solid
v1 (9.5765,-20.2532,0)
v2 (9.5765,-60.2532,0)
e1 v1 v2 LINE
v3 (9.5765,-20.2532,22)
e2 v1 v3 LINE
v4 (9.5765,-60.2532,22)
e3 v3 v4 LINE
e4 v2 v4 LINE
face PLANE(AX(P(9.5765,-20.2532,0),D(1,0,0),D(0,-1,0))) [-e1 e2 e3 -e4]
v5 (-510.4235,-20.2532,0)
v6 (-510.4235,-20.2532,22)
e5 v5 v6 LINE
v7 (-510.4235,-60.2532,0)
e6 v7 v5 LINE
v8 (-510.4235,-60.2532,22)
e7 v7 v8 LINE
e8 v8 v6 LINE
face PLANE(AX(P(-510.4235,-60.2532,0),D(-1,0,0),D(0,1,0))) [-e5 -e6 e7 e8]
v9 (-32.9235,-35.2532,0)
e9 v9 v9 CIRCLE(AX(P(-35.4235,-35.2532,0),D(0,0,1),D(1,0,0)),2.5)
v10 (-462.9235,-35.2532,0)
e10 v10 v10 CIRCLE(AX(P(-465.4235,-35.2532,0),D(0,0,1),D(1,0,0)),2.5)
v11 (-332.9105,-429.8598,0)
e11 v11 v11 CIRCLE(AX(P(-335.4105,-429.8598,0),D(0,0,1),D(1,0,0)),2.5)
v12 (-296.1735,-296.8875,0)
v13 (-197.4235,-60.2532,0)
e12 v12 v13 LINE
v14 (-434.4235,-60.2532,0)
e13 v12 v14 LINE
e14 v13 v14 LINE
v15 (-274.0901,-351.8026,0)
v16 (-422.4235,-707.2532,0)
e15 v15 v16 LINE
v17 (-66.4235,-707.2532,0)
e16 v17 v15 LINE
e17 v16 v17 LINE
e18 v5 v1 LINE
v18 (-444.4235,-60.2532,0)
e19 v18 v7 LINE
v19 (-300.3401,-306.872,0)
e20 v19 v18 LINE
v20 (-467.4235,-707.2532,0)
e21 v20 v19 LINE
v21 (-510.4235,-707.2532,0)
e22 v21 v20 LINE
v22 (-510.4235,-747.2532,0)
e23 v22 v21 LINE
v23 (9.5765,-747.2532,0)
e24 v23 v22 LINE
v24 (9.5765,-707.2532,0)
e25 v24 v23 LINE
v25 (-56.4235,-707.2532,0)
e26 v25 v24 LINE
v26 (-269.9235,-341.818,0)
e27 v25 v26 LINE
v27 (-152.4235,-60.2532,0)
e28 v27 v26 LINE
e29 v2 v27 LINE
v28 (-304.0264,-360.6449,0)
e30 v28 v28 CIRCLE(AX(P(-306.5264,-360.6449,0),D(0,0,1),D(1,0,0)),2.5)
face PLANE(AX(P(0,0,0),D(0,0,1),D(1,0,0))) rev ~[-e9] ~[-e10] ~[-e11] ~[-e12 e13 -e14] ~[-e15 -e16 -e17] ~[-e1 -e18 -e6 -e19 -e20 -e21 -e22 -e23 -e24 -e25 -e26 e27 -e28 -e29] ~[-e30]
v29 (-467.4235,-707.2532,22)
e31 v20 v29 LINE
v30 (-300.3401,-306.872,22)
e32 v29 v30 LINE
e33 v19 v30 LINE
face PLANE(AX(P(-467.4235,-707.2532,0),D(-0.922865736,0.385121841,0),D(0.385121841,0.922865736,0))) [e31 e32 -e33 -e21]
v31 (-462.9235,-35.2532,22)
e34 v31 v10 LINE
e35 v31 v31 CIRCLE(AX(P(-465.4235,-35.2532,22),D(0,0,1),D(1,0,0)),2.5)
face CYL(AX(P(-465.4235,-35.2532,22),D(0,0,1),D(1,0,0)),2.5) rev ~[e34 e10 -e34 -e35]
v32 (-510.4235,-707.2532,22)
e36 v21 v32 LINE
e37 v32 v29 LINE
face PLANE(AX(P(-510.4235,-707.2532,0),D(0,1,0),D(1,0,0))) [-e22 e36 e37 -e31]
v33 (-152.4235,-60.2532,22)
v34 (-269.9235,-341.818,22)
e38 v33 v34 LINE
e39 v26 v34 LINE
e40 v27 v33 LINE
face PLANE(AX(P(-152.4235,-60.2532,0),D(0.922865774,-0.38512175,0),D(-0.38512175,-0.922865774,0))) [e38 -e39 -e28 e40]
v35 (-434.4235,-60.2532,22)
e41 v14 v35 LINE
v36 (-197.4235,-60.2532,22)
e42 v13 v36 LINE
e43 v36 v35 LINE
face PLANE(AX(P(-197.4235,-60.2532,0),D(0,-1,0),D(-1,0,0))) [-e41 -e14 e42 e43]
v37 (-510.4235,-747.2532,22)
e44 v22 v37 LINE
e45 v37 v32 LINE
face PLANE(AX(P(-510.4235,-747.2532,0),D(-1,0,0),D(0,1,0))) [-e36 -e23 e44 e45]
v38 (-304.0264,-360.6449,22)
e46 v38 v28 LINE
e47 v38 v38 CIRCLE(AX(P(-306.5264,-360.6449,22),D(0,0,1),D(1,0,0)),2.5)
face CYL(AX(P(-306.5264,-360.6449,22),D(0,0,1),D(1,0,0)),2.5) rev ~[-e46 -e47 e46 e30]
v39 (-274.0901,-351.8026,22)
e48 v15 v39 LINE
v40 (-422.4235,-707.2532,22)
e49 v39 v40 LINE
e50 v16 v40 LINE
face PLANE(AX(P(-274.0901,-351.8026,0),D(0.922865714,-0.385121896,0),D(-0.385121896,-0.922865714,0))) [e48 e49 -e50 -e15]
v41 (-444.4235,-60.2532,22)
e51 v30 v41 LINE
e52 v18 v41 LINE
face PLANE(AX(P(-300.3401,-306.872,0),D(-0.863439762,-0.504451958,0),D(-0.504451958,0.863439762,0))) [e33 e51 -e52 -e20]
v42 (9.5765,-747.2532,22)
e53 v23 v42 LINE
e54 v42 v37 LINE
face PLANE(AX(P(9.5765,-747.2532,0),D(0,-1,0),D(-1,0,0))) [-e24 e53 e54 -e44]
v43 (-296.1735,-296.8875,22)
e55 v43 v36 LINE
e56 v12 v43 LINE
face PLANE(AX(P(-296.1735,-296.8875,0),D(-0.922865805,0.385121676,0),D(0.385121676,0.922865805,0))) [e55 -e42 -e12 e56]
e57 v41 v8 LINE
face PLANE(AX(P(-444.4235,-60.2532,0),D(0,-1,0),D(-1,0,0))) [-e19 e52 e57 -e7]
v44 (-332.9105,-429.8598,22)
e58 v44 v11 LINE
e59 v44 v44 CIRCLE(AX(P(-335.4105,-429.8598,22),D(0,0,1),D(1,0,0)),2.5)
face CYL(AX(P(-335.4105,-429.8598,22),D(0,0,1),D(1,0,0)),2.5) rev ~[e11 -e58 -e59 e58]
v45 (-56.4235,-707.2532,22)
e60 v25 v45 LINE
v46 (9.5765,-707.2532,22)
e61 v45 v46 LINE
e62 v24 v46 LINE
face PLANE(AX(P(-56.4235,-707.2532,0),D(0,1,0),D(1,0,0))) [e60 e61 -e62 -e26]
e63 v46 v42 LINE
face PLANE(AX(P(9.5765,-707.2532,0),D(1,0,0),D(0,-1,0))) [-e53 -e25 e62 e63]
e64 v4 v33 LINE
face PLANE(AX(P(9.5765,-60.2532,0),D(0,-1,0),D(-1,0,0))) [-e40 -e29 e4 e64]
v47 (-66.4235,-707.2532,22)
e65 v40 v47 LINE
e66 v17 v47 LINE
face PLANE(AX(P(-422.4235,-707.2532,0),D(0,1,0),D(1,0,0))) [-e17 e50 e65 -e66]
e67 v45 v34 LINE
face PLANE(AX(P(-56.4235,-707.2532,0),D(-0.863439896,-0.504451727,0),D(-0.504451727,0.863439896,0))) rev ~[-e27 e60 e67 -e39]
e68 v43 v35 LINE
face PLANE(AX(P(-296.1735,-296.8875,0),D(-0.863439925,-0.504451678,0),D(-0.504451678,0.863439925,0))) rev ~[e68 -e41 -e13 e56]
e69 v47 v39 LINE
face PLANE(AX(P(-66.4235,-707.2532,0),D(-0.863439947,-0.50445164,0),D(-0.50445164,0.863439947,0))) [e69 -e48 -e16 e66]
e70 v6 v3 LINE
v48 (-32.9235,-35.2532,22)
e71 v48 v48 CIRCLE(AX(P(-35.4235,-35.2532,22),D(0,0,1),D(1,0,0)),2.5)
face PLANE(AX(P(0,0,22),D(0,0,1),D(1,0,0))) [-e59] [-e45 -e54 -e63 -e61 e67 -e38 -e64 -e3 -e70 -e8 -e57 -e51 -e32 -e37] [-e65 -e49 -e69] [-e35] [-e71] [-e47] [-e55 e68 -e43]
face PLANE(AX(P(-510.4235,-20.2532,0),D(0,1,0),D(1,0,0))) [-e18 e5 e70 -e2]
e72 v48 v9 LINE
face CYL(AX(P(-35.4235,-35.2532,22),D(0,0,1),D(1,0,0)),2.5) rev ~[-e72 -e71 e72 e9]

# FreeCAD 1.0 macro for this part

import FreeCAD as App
import Part
import Sketcher
from FreeCAD import Vector
Q = App.Units.Quantity


def add_polygon(sketch, points):
    """Adds a closed chain of lines whose ends are joined by coincident constraints."""
    first, n = sketch.GeometryCount, len(points)
    for a, b in zip(points, points[1:] + points[:1]):
        sketch.addGeometry(Part.LineSegment(App.Vector(*a, 0), App.Vector(*b, 0)), False)
    for i in range(n):
        sketch.addConstraint(Sketcher.Constraint("Coincident", first + i, 2, first + (i + 1) % n, 1))

doc = App.newDocument("Part")
params = doc.addObject("Spreadsheet::Sheet", "Params")
for row, (alias, value) in enumerate([
    ("sketch1_width", "520 mm"),
    ("sketch1_width2", "66 mm"),
    ("sketch1_width3", "43 mm"),
    ("sketch1_width4", "162 mm"),
    ("sketch1_height", "40 mm"),
    ("pad1_length", "22 mm"),
    ("sketch2_diameter", "5 mm"),
    ("pocket1_length", "25 mm"),
], start=1):
    params.set(f"A{row}", alias)
    params.set(f"B{row}", "=" + value)
    params.setAlias(f"B{row}", alias)

body = doc.addObject("PartDesign::Body", "Body")

# Sketch on XY plane
sketch1 = body.newObject("Sketcher::SketchObject", "Sketch")
sketch1.AttachmentSupport = (doc.getObject("XY_Plane"), [""])
sketch1.MapMode = "FlatFace"
add_polygon(sketch1, [(10, -20), (-510, -20), (-510, -60), (-444, -60), (-300, -307), (-467, -707), (-510, -707), (-510, -747), (10, -747), (10, -707), (-56, -707), (-270, -342), (-152, -60), (10, -60)])  # lines 0-13
add_polygon(sketch1, [(-434, -60), (-197, -60), (-296, -297)])  # lines 14-16
add_polygon(sketch1, [(-274, -352), (-66, -707), (-422, -707)])  # lines 17-19
sketch1.addConstraint([
    Sketcher.Constraint("Horizontal", 0),
    Sketcher.Constraint("Vertical", 1),
    Sketcher.Constraint("Horizontal", 2),
    Sketcher.Constraint("Horizontal", 5),
    Sketcher.Constraint("Vertical", 6),
    Sketcher.Constraint("Horizontal", 7),
    Sketcher.Constraint("Vertical", 8),
    Sketcher.Constraint("Horizontal", 9),
    Sketcher.Constraint("Horizontal", 12),
    Sketcher.Constraint("Vertical", 13),
    Sketcher.Constraint("Horizontal", 14),
    Sketcher.Constraint("Horizontal", 18),
    Sketcher.Constraint("Parallel", 3, 10),
    Sketcher.Constraint("Parallel", 4, 11),
    Sketcher.Constraint("Parallel", 11, 15),
    Sketcher.Constraint("Parallel", 10, 16),
    Sketcher.Constraint("Parallel", 16, 17),
    Sketcher.Constraint("Parallel", 15, 19),
    Sketcher.Constraint("Horizontal", 5, 2, 8, 2),
    Sketcher.Constraint("Horizontal", 2, 2, 11, 2),
    Sketcher.Constraint("Horizontal", 12, 2, 14, 2),
    Sketcher.Constraint("Horizontal", 9, 2, 17, 2),
    Sketcher.Constraint("Vertical", 1, 2, 5, 2),
    Sketcher.Constraint("Vertical", 8, 2, 12, 2),
    Sketcher.Constraint("Equal", 2, 9),
    Sketcher.Constraint("Equal", 1, 6),
    Sketcher.Constraint("DistanceX", 0, 2, 0, 1, Q("520 mm")),
    Sketcher.Constraint("DistanceX", 2, 1, 2, 2, Q("66 mm")),
    Sketcher.Constraint("DistanceX", 5, 2, 5, 1, Q("43 mm")),
    Sketcher.Constraint("DistanceX", 12, 1, 12, 2, Q("162 mm")),
    Sketcher.Constraint("DistanceY", 1, 2, 1, 1, Q("40 mm")),
    Sketcher.Constraint("DistanceY", 4, 2, 2, 2, Q("647 mm")),
    Sketcher.Constraint("DistanceX", 14, 2, 11, 2, Q("45 mm")),
    Sketcher.Constraint("DistanceX", 2, 2, 16, 2, Q("10 mm")),
    Sketcher.Constraint("DistanceX", 17, 2, 9, 2, Q("10 mm")),
    Sketcher.Constraint("DistanceX", 4, 2, 18, 2, Q("45 mm")),
    Sketcher.Constraint("DistanceX", 2, 2, 10, 2, Q("174.5 mm")),
    Sketcher.Constraint("Distance", 16, Q("274.06 mm")),
    Sketcher.Constraint("DistanceX", 3, 2, -1, 1, Q("300.34 mm")),
    Sketcher.Constraint("DistanceY", 3, 2, -1, 1, Q("306.872 mm")),
])
sketch1.setExpression("Constraints[46]", "Params.sketch1_width")
sketch1.setExpression("Constraints[47]", "Params.sketch1_width2")
sketch1.setExpression("Constraints[48]", "Params.sketch1_width3")
sketch1.setExpression("Constraints[49]", "Params.sketch1_width4")
sketch1.setExpression("Constraints[50]", "Params.sketch1_height")
pad1 = body.newObject("PartDesign::Pad", "Pad")
pad1.Profile = sketch1
pad1.setExpression("Length", "Params.pad1_length")

# Sketch on XY plane
sketch2 = body.newObject("Sketcher::SketchObject", "Sketch001")
sketch2.AttachmentSupport = (doc.getObject("XY_Plane"), [""])
sketch2.MapMode = "FlatFace"
sketch2.AttachmentOffset = App.Placement(Vector(0, 0, 22), App.Rotation())
sketch2.addGeometry([
    Part.Circle(Vector(-35.4, -35.3, 0), Vector(0, 0, 1), 2.5),
    Part.Circle(Vector(-465.4, -35.3, 0), Vector(0, 0, 1), 2.5),
    Part.Circle(Vector(-306.5, -360.6, 0), Vector(0, 0, 1), 2.5),
    Part.Circle(Vector(-335.4, -429.9, 0), Vector(0, 0, 1), 2.5),
], False)
sketch2.addConstraint([
    Sketcher.Constraint("Equal", 0, 1),
    Sketcher.Constraint("Equal", 1, 2),
    Sketcher.Constraint("Equal", 2, 3),
    Sketcher.Constraint("Horizontal", 0, 3, 1, 3),
    Sketcher.Constraint("Diameter", 0, Q("5 mm")),
    Sketcher.Constraint("DistanceX", 1, 3, 0, 3, Q("430 mm")),
    Sketcher.Constraint("DistanceY", 2, 3, -1, 1, Q("360.645 mm")),
    Sketcher.Constraint("DistanceX", 1, 3, 2, 3, Q("158.897 mm")),
    Sketcher.Constraint("DistanceX", 3, 3, 2, 3, Q("28.884 mm")),
    Sketcher.Constraint("DistanceY", 3, 3, 2, 3, Q("69.215 mm")),
    Sketcher.Constraint("DistanceX", 0, 3, -1, 1, Q("35.4235 mm")),
    Sketcher.Constraint("DistanceY", 0, 3, -1, 1, Q("35.2532 mm")),
])
sketch2.setExpression("Constraints[4]", "Params.sketch2_diameter")
pocket1 = body.newObject("PartDesign::Pocket", "Pocket")
pocket1.Profile = sketch2
pocket1.setExpression("Length", "Params.pocket1_length")

doc.recompute()
